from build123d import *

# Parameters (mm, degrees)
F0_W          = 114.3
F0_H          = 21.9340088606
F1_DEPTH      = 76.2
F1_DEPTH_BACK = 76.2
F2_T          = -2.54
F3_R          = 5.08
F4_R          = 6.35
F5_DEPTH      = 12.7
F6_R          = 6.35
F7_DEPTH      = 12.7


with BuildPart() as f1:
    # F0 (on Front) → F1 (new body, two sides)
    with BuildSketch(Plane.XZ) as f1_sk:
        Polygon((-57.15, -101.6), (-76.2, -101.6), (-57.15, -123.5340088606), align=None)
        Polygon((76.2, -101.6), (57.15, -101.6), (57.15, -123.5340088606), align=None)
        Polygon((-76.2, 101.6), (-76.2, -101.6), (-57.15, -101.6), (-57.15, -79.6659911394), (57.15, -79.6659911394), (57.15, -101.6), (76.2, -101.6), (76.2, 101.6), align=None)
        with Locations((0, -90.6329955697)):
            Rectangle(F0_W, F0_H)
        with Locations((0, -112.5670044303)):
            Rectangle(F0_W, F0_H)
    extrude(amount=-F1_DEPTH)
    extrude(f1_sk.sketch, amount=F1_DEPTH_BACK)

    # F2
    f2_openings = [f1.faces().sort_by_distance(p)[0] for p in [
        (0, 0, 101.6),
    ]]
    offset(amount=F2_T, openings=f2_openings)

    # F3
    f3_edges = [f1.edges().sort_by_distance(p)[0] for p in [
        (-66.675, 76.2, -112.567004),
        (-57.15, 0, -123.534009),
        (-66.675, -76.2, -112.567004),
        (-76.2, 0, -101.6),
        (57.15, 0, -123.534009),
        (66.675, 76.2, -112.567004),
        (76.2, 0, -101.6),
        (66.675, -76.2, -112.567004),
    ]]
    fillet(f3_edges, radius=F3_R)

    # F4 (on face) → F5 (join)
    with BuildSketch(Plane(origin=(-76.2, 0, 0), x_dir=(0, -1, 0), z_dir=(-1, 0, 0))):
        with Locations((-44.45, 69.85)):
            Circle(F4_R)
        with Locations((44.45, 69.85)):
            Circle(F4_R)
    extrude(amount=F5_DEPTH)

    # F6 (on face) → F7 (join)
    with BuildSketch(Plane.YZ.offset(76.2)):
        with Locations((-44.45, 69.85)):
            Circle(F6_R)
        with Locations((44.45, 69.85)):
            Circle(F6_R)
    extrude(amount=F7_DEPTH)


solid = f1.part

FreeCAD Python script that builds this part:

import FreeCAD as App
import Part
import Sketcher
Q = App.Units.Quantity


def edges_at(feature, points):
    """Names of the edges that pass closest to the given points."""
    edges = feature.Shape.Edges
    near = lambda p: min(range(len(edges)), key=lambda i: edges[i].distToShape(Part.Vertex(*p))[0])
    return sorted({f"Edge{near(p) + 1}" for p in points})


def faces_at(feature, points):
    """Names of the faces that lie closest to the given points."""
    faces = feature.Shape.Faces
    near = lambda p: min(range(len(faces)), key=lambda i: faces[i].distToShape(Part.Vertex(*p))[0])
    return sorted({f"Face{near(p) + 1}" for p in points})


def add_polygon(sketch, points):
    """Adds a closed chain of lines whose ends are joined by coincident constraints."""
    first, n = sketch.GeometryCount, len(points)
    for a, b in zip(points, points[1:] + points[:1]):
        sketch.addGeometry(Part.LineSegment(App.Vector(*a, 0), App.Vector(*b, 0)), False)
    for i in range(n):
        sketch.addConstraint(Sketcher.Constraint("Coincident", first + i, 2, first + (i + 1) % n, 1))

doc = App.newDocument("Part")
params = doc.addObject("Spreadsheet::Sheet", "Params")
for row, (alias, value) in enumerate([
    ("sketch1_width", "6 in"),
    ("sketch1_height", "8 in"),
    ("sketch1_width2", "4.5 in"),
    ("pad1_length", "3 in"),
    ("pad1_length2", "3 in"),
    ("thickness_wall", "0.1 in"),
    ("fillet_radius", "0.2 in"),
    ("sketch2_diameter", "0.5 in"),
    ("pad2_length", "0.5 in"),
    ("sketch3_diameter", "0.5 in"),
    ("pad3_length", "0.5 in"),
], start=1):
    params.set(f"A{row}", alias)
    params.set(f"B{row}", "=" + value)
    params.setAlias(f"B{row}", alias)

body = doc.addObject("PartDesign::Body", "Body")

# Sketch on XZ plane
sketch1 = body.newObject("Sketcher::SketchObject", "Sketch")
sketch1.AttachmentSupport = (doc.getObject("XZ_Plane"), [""])
sketch1.MapMode = "FlatFace"
add_polygon(sketch1, [(-76, -102), (-57, -124), (57, -124), (76, -102), (76, 102), (-76, 102)])  # lines 0-5
sketch1.addConstraint([
    Sketcher.Constraint("Horizontal", 1),
    Sketcher.Constraint("Vertical", 3),
    Sketcher.Constraint("Horizontal", 4),
    Sketcher.Constraint("Vertical", 5),
    Sketcher.Constraint("Symmetric", 2, 2, 4, 2, -1, 1),
    Sketcher.Constraint("Horizontal", 2, 2, 5, 2),
    Sketcher.Constraint("Equal", 0, 2),
    Sketcher.Constraint("DistanceX", 4, 2, 4, 1, Q("6 in")),
    Sketcher.Constraint("DistanceY", 3, 1, 3, 2, Q("8 in")),
    Sketcher.Constraint("DistanceX", 1, 1, 1, 2, Q("4.5 in")),
    Sketcher.Constraint("DistanceY", 0, 2, -1, 1, Q("123.534009 mm")),
])
sketch1.setExpression("Constraints[13]", "Params.sketch1_width")
sketch1.setExpression("Constraints[14]", "Params.sketch1_height")
sketch1.setExpression("Constraints[15]", "Params.sketch1_width2")
pad1 = body.newObject("PartDesign::Pad", "Pad")
pad1.Profile = sketch1
pad1.Type = "TwoLengths"
pad1.setExpression("Length", "Params.pad1_length")
pad1.setExpression("Length2", "Params.pad1_length2")
pad1.Reversed = True
doc.recompute()

thickness = body.newObject("PartDesign::Thickness", "Thickness")
thickness.Base = (pad1, faces_at(pad1, [(0, 0, 101.6)]))
thickness.setExpression("Value", "Params.thickness_wall")
thickness.Reversed = True
thickness.Join = "Arc"
doc.recompute()

fillet = body.newObject("PartDesign::Fillet", "Fillet")
fillet.Base = (thickness, edges_at(thickness, [
    (-66.675, 76.2, -112.567),
    (-57.15, 0, -123.534),
    (-66.675, -76.2, -112.567),
    (-76.2, 0, -101.6),
    (57.15, 0, -123.534),
    (66.675, 76.2, -112.567),
    (76.2, 0, -101.6),
    (66.675, -76.2, -112.567),
]))
fillet.setExpression("Radius", "Params.fillet_radius")

# Sketch on YZ plane
sketch2 = body.newObject("Sketcher::SketchObject", "Sketch001")
sketch2.AttachmentSupport = (doc.getObject("YZ_Plane"), [""])
sketch2.MapMode = "FlatFace"
sketch2.AttachmentOffset = App.Placement(App.Vector(0, 0, -3 * 25.4), App.Rotation())
sketch2.addGeometry([
    Part.Circle(App.Vector(44, 70, 0), App.Vector(0, 0, 1), 6),
    Part.Circle(App.Vector(-44, 70, 0), App.Vector(0, 0, 1), 6),
], False)
sketch2.addConstraint([
    Sketcher.Constraint("Equal", 0, 1),
    Sketcher.Constraint("Symmetric", 0, 3, 1, 3, -2),
    Sketcher.Constraint("Diameter", 0, Q("0.5 in")),
    Sketcher.Constraint("DistanceX", 1, 3, 0, 3, Q("3.5 in")),
    Sketcher.Constraint("DistanceY", -1, 1, 0, 3, Q("2.75 in")),
])
sketch2.setExpression("Constraints[2]", "Params.sketch2_diameter")
pad2 = body.newObject("PartDesign::Pad", "Pad001")
pad2.Profile = sketch2
pad2.setExpression("Length", "Params.pad2_length")
pad2.Reversed = True

# Sketch on YZ plane
sketch3 = body.newObject("Sketcher::SketchObject", "Sketch002")
sketch3.AttachmentSupport = (doc.getObject("YZ_Plane"), [""])
sketch3.MapMode = "FlatFace"
sketch3.AttachmentOffset = App.Placement(App.Vector(0, 0, 3 * 25.4), App.Rotation())
sketch3.addGeometry([
    Part.Circle(App.Vector(-44, 70, 0), App.Vector(0, 0, 1), 6),
    Part.Circle(App.Vector(44, 70, 0), App.Vector(0, 0, 1), 6),
], False)
sketch3.addConstraint([
    Sketcher.Constraint("Equal", 0, 1),
    Sketcher.Constraint("Symmetric", 0, 3, 1, 3, -2),
    Sketcher.Constraint("Diameter", 0, Q("0.5 in")),
    Sketcher.Constraint("DistanceX", 0, 3, 1, 3, Q("3.5 in")),
    Sketcher.Constraint("DistanceY", -1, 1, 0, 3, Q("2.75 in")),
])
sketch3.setExpression("Constraints[2]", "Params.sketch3_diameter")
pad3 = body.newObject("PartDesign::Pad", "Pad002")
pad3.Profile = sketch3
pad3.setExpression("Length", "Params.pad3_length")

doc.recompute()
